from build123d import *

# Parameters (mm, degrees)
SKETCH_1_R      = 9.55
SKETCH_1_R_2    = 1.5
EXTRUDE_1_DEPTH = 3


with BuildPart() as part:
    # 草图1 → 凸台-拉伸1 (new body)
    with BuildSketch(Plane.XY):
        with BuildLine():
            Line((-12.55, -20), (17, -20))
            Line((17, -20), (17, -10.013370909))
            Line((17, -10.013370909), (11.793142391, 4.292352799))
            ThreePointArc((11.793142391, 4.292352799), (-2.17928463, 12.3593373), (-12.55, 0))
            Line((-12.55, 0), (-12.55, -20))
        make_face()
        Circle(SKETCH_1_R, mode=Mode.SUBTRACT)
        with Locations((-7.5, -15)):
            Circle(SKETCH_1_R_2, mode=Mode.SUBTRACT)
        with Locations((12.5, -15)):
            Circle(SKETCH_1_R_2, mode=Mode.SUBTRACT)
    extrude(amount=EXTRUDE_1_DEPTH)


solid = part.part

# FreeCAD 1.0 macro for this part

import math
import FreeCAD as App
import Part
import Sketcher
Q = App.Units.Quantity

doc = App.newDocument("Part")
params = doc.addObject("Spreadsheet::Sheet", "Params")
for row, (alias, value) in enumerate([
    ("sketch1_diameter", "3 mm"),
    ("sketch1_diameter2", "19.1 mm"),
    ("sketch1_height", "20 mm"),
    ("sketch1_radius", "12.55 mm"),
    ("pad1_length", "3 mm"),
], start=1):
    params.set(f"A{row}", alias)
    params.set(f"B{row}", "=" + value)
    params.setAlias(f"B{row}", alias)

body = doc.addObject("PartDesign::Body", "Body")

sketch1 = body.newObject("Sketcher::SketchObject", "Sketch")
sketch1.AttachmentSupport = (doc.getObject("XY_Plane"), [""])
sketch1.MapMode = "FlatFace"
sketch1.addGeometry([
    Part.LineSegment(App.Vector(-12.55, -20, 0), App.Vector(17, -20, 0)),
    Part.LineSegment(App.Vector(17, -20, 0), App.Vector(17, -10.013371, 0)),
    Part.LineSegment(App.Vector(17, -10.013371, 0), App.Vector(11.793142, 4.292353, 0)),
    Part.ArcOfCircle(Part.Circle(App.Vector(0, 0, 0), App.Vector(0, 0, 1), 12.55), math.radians(20), math.radians(180)),
    Part.LineSegment(App.Vector(-12.55, 0, 0), App.Vector(-12.55, -20, 0)),
    Part.Circle(App.Vector(-7.5, -15, 0), App.Vector(0, 0, 1), 1.5),
    Part.Circle(App.Vector(12.5, -15, 0), App.Vector(0, 0, 1), 1.5),
    Part.Circle(App.Vector(0, 0, 0), App.Vector(0, 0, 1), 9.55),
], False)
sketch1.addConstraint([
    Sketcher.Constraint("Coincident", 0, 2, 1, 1),
    Sketcher.Constraint("Coincident", 1, 2, 2, 1),
    Sketcher.Constraint("Tangent", 2, 2, 3, 1),
    Sketcher.Constraint("Tangent", 3, 2, 4, 1),
    Sketcher.Constraint("Coincident", 4, 2, 0, 1),
    Sketcher.Constraint("Horizontal", 0),
    Sketcher.Constraint("Vertical", 1),
    Sketcher.Constraint("Vertical", 4),
    Sketcher.Constraint("Coincident", 3, 3, -1, 1),
    Sketcher.Constraint("Coincident", 7, 3, -1, 1),
    Sketcher.Constraint("Equal", 5, 6),
    Sketcher.Constraint("Horizontal", 5, 3, 6, 3),
    Sketcher.Constraint("Diameter", 5, 3.0),
    Sketcher.Constraint("Diameter", 7, 19.1),
    Sketcher.Constraint("DistanceY", 4, 2, 4, 1, 20.0),
    Sketcher.Constraint("Angle", 2, Q("110 deg")),
    Sketcher.Constraint("Radius", 3, 12.55),
    Sketcher.Constraint("DistanceY", 5, 3, -1, 1, 15.0),
    Sketcher.Constraint("DistanceX", -1, 1, 0, 2, 17.0),
    Sketcher.Constraint("DistanceX", 5, 3, 6, 3, 20.0),
    Sketcher.Constraint("DistanceX", 5, 3, -1, 1, 7.5),
])
sketch1.setExpression("Constraints[12]", "Params.sketch1_diameter")
sketch1.setExpression("Constraints[13]", "Params.sketch1_diameter2")
sketch1.setExpression("Constraints[14]", "Params.sketch1_height")
sketch1.setExpression("Constraints[16]", "Params.sketch1_radius")
pad1 = body.newObject("PartDesign::Pad", "Pad")
pad1.Profile = sketch1
pad1.setExpression("Length", "Params.pad1_length")

doc.recompute()
